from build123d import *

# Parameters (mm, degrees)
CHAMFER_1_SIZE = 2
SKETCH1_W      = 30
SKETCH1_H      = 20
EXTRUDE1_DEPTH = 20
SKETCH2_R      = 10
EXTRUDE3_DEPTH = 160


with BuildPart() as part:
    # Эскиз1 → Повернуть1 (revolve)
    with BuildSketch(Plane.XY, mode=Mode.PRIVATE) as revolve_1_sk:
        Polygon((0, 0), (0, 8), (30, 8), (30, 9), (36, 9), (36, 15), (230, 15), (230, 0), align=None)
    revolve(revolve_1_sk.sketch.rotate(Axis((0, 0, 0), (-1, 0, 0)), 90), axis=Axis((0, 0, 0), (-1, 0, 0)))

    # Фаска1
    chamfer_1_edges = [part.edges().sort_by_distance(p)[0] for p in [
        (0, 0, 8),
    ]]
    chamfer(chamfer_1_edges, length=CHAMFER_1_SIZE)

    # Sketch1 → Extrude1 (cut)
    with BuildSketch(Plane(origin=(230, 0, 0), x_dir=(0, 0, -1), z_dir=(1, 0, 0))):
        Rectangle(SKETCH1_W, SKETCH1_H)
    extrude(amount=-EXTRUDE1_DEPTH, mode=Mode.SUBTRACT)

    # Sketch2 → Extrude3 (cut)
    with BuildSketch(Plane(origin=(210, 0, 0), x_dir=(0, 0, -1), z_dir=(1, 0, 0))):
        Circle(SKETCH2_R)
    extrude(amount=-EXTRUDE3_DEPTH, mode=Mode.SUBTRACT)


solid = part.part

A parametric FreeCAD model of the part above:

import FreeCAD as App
import Part
import Sketcher

V = App.Vector
Q = App.Units.Quantity


def edges_at(feature, points):
    """Names of the edges that pass closest to the given points."""
    edges = feature.Shape.Edges
    near = lambda p: min(range(len(edges)), key=lambda i: edges[i].distToShape(Part.Vertex(*p))[0])
    return sorted({f"Edge{near(p) + 1}" for p in points})

doc = App.newDocument("Part")
body = doc.addObject("PartDesign::Body", "Body")

sketch1 = doc.addObject("Sketcher::SketchObject", "Sketch")
body.addObject(sketch1)
sketch1.AttachmentSupport = (doc.XY_Plane, [""])
sketch1.MapMode = "FlatFace"
sketch1.addGeometry([
    Part.LineSegment(V(0, 8, 0), V(0, 0, 0)),
    Part.LineSegment(V(0, 0, 0), V(230, 0, 0)),
    Part.LineSegment(V(230, 0, 0), V(230, 15, 0)),
    Part.LineSegment(V(230, 15, 0), V(36, 15, 0)),
    Part.LineSegment(V(36, 15, 0), V(36, 9, 0)),
    Part.LineSegment(V(36, 9, 0), V(30, 9, 0)),
    Part.LineSegment(V(30, 9, 0), V(30, 8, 0)),
    Part.LineSegment(V(30, 8, 0), V(0, 8, 0)),
], False)
sketch1.addConstraint([
    Sketcher.Constraint("Coincident", 0, 2, 1, 1),
    Sketcher.Constraint("Coincident", 1, 2, 2, 1),
    Sketcher.Constraint("Coincident", 2, 2, 3, 1),
    Sketcher.Constraint("Coincident", 3, 2, 4, 1),
    Sketcher.Constraint("Coincident", 4, 2, 5, 1),
    Sketcher.Constraint("Coincident", 5, 2, 6, 1),
    Sketcher.Constraint("Coincident", 6, 2, 7, 1),
    Sketcher.Constraint("Coincident", 7, 2, 0, 1),
    Sketcher.Constraint("Vertical", 0),
    Sketcher.Constraint("Horizontal", 1),
    Sketcher.Constraint("Vertical", 2),
    Sketcher.Constraint("Horizontal", 3),
    Sketcher.Constraint("Vertical", 4),
    Sketcher.Constraint("Horizontal", 5),
    Sketcher.Constraint("Vertical", 6),
    Sketcher.Constraint("Horizontal", 7),
    Sketcher.Constraint("Coincident", 0, 2, -1, 1),
    Sketcher.Constraint("Equal", 5, 4),
    Sketcher.Constraint("DistanceX", 1, 1, 1, 2, Q("230 mm")),
    Sketcher.Constraint("DistanceX", 3, 2, 3, 1, Q("194 mm")),
    Sketcher.Constraint("DistanceX", 5, 2, 5, 1, Q("6 mm")),
    Sketcher.Constraint("DistanceY", 0, 2, 0, 1, Q("8 mm")),
    Sketcher.Constraint("DistanceY", 2, 1, 2, 2, Q("15 mm")),
])
revolution = doc.addObject("PartDesign::Revolution", "Revolution")
body.addObject(revolution)
revolution.Profile = sketch1
revolution.ReferenceAxis = (sketch1, ["H_Axis"])
revolution.Angle = 360
doc.recompute()

chamfer = doc.addObject("PartDesign::Chamfer", "Chamfer")
body.addObject(chamfer)
chamfer.Base = (revolution, edges_at(revolution, [(0, 0, 8)]))
chamfer.Size = 2

sketch2 = doc.addObject("Sketcher::SketchObject", "Sketch001")
body.addObject(sketch2)
sketch2.AttachmentSupport = (doc.YZ_Plane, [""])
sketch2.MapMode = "FlatFace"
sketch2.AttachmentOffset = App.Placement(V(0, 0, 230), App.Rotation())
sketch2.addGeometry([
    Part.LineSegment(V(10, 15, 0), V(-10, 15, 0)),
    Part.LineSegment(V(-10, 15, 0), V(-10, -15, 0)),
    Part.LineSegment(V(-10, -15, 0), V(10, -15, 0)),
    Part.LineSegment(V(10, -15, 0), V(10, 15, 0)),
], False)
sketch2.addConstraint([
    Sketcher.Constraint("Coincident", 0, 2, 1, 1),
    Sketcher.Constraint("Coincident", 1, 2, 2, 1),
    Sketcher.Constraint("Coincident", 2, 2, 3, 1),
    Sketcher.Constraint("Coincident", 3, 2, 0, 1),
    Sketcher.Constraint("Horizontal", 0),
    Sketcher.Constraint("Vertical", 1),
    Sketcher.Constraint("Horizontal", 2),
    Sketcher.Constraint("Vertical", 3),
    Sketcher.Constraint("Symmetric", 0, 2, 2, 2, -1, 1),
    Sketcher.Constraint("DistanceX", 0, 2, 0, 1, Q("20 mm")),
    Sketcher.Constraint("DistanceY", 1, 2, 1, 1, Q("30 mm")),
])
pocket1 = doc.addObject("PartDesign::Pocket", "Pocket")
body.addObject(pocket1)
pocket1.Profile = sketch2
pocket1.Length = 20

sketch3 = doc.addObject("Sketcher::SketchObject", "Sketch002")
body.addObject(sketch3)
sketch3.AttachmentSupport = (doc.YZ_Plane, [""])
sketch3.MapMode = "FlatFace"
sketch3.AttachmentOffset = App.Placement(V(0, 0, 210), App.Rotation())
sketch3.addGeometry(Part.Circle(V(0, 0, 0), V(0, 0, 1), 10), False)
sketch3.addConstraint([
    Sketcher.Constraint("Coincident", 0, 3, -1, 1),
    Sketcher.Constraint("Diameter", 0, Q("20 mm")),
])
pocket2 = doc.addObject("PartDesign::Pocket", "Pocket001")
body.addObject(pocket2)
pocket2.Profile = sketch3
pocket2.Length = 160

doc.recompute()
